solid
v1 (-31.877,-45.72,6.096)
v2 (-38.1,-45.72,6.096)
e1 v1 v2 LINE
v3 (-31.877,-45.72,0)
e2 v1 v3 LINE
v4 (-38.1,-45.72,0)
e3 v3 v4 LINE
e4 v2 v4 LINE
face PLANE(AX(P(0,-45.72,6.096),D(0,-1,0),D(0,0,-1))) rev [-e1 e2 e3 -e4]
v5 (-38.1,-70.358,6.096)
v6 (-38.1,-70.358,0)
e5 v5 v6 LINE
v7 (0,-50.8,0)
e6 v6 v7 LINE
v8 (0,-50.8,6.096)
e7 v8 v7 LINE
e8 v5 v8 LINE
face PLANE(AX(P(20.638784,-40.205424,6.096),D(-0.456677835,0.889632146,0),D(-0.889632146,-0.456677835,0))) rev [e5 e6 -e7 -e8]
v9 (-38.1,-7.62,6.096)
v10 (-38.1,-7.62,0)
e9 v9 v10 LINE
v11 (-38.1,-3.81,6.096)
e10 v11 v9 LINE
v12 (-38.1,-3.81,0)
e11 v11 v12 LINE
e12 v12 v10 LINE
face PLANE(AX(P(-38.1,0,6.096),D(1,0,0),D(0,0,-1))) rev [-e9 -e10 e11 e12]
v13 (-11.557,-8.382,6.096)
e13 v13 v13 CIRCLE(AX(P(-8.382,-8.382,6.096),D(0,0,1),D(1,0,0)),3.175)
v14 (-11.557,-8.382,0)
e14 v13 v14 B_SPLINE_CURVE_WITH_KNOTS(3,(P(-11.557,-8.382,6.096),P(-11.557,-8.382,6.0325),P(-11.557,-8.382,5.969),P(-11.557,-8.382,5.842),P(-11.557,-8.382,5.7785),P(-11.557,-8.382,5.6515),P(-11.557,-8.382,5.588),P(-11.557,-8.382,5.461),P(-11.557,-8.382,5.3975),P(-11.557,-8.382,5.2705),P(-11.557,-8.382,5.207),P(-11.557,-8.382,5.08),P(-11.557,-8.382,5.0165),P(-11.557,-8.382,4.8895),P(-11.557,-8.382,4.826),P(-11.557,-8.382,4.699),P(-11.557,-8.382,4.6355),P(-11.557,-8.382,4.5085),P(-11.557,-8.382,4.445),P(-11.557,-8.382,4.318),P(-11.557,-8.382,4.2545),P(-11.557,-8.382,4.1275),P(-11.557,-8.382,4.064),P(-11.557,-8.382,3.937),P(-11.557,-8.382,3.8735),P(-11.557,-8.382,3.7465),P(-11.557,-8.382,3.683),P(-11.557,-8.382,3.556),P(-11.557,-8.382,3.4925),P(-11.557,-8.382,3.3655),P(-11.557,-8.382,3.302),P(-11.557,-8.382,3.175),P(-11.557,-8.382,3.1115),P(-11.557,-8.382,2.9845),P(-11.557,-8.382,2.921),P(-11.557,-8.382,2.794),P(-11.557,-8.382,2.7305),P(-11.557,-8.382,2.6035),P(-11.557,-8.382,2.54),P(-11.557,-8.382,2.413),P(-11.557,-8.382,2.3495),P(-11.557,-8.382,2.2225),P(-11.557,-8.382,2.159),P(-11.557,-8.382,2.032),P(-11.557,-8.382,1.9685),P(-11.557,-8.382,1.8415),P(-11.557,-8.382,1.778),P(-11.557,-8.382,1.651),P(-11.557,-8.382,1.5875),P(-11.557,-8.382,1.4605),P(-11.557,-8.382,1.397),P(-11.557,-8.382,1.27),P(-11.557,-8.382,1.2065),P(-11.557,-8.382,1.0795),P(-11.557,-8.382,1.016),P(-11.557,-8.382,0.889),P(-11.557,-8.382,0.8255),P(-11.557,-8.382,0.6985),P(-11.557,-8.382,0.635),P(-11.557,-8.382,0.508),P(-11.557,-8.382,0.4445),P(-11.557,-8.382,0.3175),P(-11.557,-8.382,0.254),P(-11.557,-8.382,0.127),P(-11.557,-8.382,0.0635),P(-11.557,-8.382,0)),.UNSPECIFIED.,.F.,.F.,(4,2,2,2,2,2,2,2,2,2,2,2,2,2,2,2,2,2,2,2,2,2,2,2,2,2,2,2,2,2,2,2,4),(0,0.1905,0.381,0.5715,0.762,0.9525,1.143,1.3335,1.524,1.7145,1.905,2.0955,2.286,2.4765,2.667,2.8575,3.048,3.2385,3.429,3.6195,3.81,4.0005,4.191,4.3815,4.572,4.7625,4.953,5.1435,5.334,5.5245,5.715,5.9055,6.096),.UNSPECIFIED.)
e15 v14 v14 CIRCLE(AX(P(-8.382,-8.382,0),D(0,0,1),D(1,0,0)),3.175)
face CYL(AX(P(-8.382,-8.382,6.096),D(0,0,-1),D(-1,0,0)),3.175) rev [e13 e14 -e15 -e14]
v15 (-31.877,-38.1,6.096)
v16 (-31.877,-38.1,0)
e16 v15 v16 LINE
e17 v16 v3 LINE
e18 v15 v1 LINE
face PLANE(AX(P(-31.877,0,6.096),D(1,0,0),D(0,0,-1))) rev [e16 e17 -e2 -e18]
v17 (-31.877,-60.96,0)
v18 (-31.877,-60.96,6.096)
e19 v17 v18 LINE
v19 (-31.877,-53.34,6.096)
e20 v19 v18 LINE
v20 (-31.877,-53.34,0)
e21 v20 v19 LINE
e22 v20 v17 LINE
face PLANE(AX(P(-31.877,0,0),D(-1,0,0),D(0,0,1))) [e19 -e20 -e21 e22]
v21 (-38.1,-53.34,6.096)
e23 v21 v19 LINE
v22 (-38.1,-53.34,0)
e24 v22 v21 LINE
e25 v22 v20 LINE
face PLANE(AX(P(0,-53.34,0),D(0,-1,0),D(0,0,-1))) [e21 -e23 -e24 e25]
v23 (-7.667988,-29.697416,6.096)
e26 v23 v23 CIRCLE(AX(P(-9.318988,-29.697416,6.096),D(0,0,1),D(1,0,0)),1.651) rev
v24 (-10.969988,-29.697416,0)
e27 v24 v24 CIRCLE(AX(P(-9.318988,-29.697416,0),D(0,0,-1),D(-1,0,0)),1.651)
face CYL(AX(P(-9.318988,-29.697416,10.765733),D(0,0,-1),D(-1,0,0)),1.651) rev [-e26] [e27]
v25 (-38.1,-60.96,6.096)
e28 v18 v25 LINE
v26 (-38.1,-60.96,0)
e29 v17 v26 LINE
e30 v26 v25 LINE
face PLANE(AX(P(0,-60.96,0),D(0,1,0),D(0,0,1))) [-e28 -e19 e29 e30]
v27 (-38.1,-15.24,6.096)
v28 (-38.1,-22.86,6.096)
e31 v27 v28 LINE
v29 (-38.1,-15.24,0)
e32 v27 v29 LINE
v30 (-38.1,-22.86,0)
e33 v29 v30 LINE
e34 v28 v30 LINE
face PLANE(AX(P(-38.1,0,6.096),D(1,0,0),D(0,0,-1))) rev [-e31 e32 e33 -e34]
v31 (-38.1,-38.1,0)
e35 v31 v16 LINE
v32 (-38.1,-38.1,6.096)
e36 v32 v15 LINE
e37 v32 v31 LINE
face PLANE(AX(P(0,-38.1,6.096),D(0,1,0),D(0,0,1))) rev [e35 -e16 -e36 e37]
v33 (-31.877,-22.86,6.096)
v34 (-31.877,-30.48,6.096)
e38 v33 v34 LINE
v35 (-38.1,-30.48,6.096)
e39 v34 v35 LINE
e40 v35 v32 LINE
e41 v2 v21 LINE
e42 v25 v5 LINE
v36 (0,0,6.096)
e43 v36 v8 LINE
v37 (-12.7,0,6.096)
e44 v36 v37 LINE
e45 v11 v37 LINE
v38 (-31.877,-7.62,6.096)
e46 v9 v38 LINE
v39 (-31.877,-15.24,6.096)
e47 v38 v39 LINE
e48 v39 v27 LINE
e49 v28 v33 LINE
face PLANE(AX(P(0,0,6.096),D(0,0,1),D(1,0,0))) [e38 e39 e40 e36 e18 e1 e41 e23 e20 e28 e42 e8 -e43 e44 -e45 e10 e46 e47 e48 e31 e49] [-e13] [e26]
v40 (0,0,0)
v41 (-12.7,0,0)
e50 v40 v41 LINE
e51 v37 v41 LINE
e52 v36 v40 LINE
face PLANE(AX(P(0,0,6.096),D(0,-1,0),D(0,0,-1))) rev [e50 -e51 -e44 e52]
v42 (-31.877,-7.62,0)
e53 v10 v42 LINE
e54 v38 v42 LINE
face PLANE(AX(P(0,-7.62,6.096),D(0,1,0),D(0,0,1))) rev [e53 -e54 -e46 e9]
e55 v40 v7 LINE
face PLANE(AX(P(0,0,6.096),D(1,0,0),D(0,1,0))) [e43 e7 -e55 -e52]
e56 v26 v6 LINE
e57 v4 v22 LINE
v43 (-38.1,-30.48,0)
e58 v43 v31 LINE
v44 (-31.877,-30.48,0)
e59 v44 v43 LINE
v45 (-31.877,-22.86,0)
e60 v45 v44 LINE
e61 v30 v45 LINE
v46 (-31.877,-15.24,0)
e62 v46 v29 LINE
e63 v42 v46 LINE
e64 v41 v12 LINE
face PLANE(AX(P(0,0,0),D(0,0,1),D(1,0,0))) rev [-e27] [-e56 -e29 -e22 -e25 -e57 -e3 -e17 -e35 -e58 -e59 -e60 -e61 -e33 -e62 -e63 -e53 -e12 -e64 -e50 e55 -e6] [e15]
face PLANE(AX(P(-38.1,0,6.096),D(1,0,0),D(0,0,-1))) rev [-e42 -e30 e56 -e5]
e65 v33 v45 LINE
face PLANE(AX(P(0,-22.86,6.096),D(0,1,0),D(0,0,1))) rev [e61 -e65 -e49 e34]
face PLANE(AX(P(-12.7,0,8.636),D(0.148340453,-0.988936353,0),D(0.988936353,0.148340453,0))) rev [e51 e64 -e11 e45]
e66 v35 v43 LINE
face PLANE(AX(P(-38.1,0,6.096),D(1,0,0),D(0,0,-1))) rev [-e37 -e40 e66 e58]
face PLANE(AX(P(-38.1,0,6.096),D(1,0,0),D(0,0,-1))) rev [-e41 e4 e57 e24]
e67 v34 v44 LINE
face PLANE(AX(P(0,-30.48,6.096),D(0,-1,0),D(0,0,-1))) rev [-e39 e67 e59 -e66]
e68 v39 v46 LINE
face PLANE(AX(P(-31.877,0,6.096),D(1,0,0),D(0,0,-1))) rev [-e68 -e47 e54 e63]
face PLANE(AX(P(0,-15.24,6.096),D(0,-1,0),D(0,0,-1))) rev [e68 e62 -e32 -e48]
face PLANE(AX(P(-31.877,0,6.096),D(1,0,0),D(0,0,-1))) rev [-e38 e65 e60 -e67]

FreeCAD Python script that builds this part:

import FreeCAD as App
import Part
import Sketcher

V = App.Vector
Q = App.Units.Quantity

doc = App.newDocument("Part")
body = doc.addObject("PartDesign::Body", "Body")

sketch1 = doc.addObject("Sketcher::SketchObject", "Sketch")
body.addObject(sketch1)
sketch1.AttachmentSupport = (doc.XY_Plane, [""])
sketch1.MapMode = "FlatFace"
sketch1.addGeometry([
    Part.LineSegment(V(0, 0, 0), V(-38.1, 0, 0)),
    Part.LineSegment(V(-38.1, 0, 0), V(-38.1, -7.62, 0)),
    Part.LineSegment(V(-38.1, -7.62, 0), V(-31.877, -7.62, 0)),
    Part.LineSegment(V(-31.877, -7.62, 0), V(-31.877, -15.24, 0)),
    Part.LineSegment(V(-31.877, -15.24, 0), V(-38.1, -15.24, 0)),
    Part.LineSegment(V(-38.1, -15.24, 0), V(-38.1, -22.86, 0)),
    Part.LineSegment(V(-38.1, -22.86, 0), V(-31.877, -22.86, 0)),
    Part.LineSegment(V(-31.877, -22.86, 0), V(-31.877, -30.48, 0)),
    Part.LineSegment(V(-31.877, -30.48, 0), V(-38.1, -30.48, 0)),
    Part.LineSegment(V(-38.1, -30.48, 0), V(-38.1, -38.1, 0)),
    Part.LineSegment(V(-38.1, -38.1, 0), V(-31.877, -38.1, 0)),
    Part.LineSegment(V(-31.877, -38.1, 0), V(-31.877, -45.72, 0)),
    Part.LineSegment(V(-31.877, -45.72, 0), V(-38.1, -45.72, 0)),
    Part.LineSegment(V(-38.1, -45.72, 0), V(-38.1, -70.358, 0)),
    Part.LineSegment(V(-38.1, -70.358, 0), V(0, -50.8, 0)),
    Part.LineSegment(V(0, -50.8, 0), V(0, 0, 0)),
    Part.Circle(V(-8.382, -8.382, 0), V(0, 0, 1), 3.175),
], False)
sketch1.addConstraint([
    Sketcher.Constraint("Coincident", 0, 2, 1, 1),
    Sketcher.Constraint("Coincident", 1, 2, 2, 1),
    Sketcher.Constraint("Coincident", 2, 2, 3, 1),
    Sketcher.Constraint("Coincident", 3, 2, 4, 1),
    Sketcher.Constraint("Coincident", 4, 2, 5, 1),
    Sketcher.Constraint("Coincident", 5, 2, 6, 1),
    Sketcher.Constraint("Coincident", 6, 2, 7, 1),
    Sketcher.Constraint("Coincident", 7, 2, 8, 1),
    Sketcher.Constraint("Coincident", 8, 2, 9, 1),
    Sketcher.Constraint("Coincident", 9, 2, 10, 1),
    Sketcher.Constraint("Coincident", 10, 2, 11, 1),
    Sketcher.Constraint("Coincident", 11, 2, 12, 1),
    Sketcher.Constraint("Coincident", 12, 2, 13, 1),
    Sketcher.Constraint("Coincident", 13, 2, 14, 1),
    Sketcher.Constraint("Coincident", 14, 2, 15, 1),
    Sketcher.Constraint("Coincident", 15, 2, 0, 1),
    Sketcher.Constraint("Horizontal", 0),
    Sketcher.Constraint("Vertical", 1),
    Sketcher.Constraint("Horizontal", 2),
    Sketcher.Constraint("Vertical", 3),
    Sketcher.Constraint("Horizontal", 4),
    Sketcher.Constraint("Vertical", 5),
    Sketcher.Constraint("Horizontal", 6),
    Sketcher.Constraint("Vertical", 7),
    Sketcher.Constraint("Horizontal", 8),
    Sketcher.Constraint("Vertical", 9),
    Sketcher.Constraint("Horizontal", 10),
    Sketcher.Constraint("Vertical", 11),
    Sketcher.Constraint("Horizontal", 12),
    Sketcher.Constraint("Vertical", 13),
    Sketcher.Constraint("Vertical", 15),
    Sketcher.Constraint("Coincident", 15, 2, -1, 1),
    Sketcher.Constraint("Vertical", 1, 2, 4, 2),
    Sketcher.Constraint("Vertical", 3, 2, 6, 2),
    Sketcher.Constraint("Vertical", 5, 2, 8, 2),
    Sketcher.Constraint("Vertical", 7, 2, 10, 2),
    Sketcher.Constraint("Vertical", 9, 2, 12, 2),
    Sketcher.Constraint("Equal", 1, 3),
    Sketcher.Constraint("Equal", 3, 5),
    Sketcher.Constraint("Equal", 5, 7),
    Sketcher.Constraint("Equal", 7, 9),
    Sketcher.Constraint("Equal", 9, 11),
    Sketcher.Constraint("Diameter", 16, Q("0.25 in")),
    Sketcher.Constraint("DistanceY", 15, 1, 15, 2, Q("2 in")),
    Sketcher.Constraint("DistanceX", 0, 2, 0, 1, Q("1.5 in")),
    Sketcher.Constraint("DistanceY", 1, 2, 1, 1, Q("0.3 in")),
    Sketcher.Constraint("DistanceY", 13, 2, 13, 1, Q("0.97 in")),
    Sketcher.Constraint("DistanceX", 2, 1, 2, 2, Q("0.245 in")),
    Sketcher.Constraint("DistanceX", 16, 3, -1, 1, Q("0.33 in")),
    Sketcher.Constraint("DistanceY", 16, 3, -1, 1, Q("0.33 in")),
])
pad1 = doc.addObject("PartDesign::Pad", "Pad")
body.addObject(pad1)
pad1.Profile = sketch1
pad1.Length = Q("0.24 in")

sketch2 = doc.addObject("Sketcher::SketchObject", "Sketch001")
body.addObject(sketch2)
sketch2.AttachmentSupport = (doc.XY_Plane, [""])
sketch2.MapMode = "FlatFace"
sketch2.addGeometry([
    Part.LineSegment(V(-38.1, 0, 0), V(-12.7, 0, 0)),
    Part.LineSegment(V(-12.7, 0, 0), V(-38.1, -3.81, 0)),
    Part.LineSegment(V(-38.1, -3.81, 0), V(-38.1, 0, 0)),
], False)
sketch2.addConstraint([
    Sketcher.Constraint("Coincident", 0, 2, 1, 1),
    Sketcher.Constraint("Coincident", 1, 2, 2, 1),
    Sketcher.Constraint("Coincident", 2, 2, 0, 1),
    Sketcher.Constraint("Horizontal", 0),
    Sketcher.Constraint("Vertical", 2),
    Sketcher.Constraint("PointOnObject", 0, 2, -1),
    Sketcher.Constraint("DistanceX", 0, 1, 0, 2, Q("1 in")),
    Sketcher.Constraint("DistanceY", 2, 1, 2, 2, Q("0.15 in")),
    Sketcher.Constraint("DistanceX", 0, 2, -1, 1, Q("0.5 in")),
])
pocket1 = doc.addObject("PartDesign::Pocket", "Pocket")
body.addObject(pocket1)
pocket1.Profile = sketch2
pocket1.Length = Q("0.34 in")
pocket1.Reversed = True

sketch3 = doc.addObject("Sketcher::SketchObject", "Sketch002")
body.addObject(sketch3)
sketch3.AttachmentSupport = (doc.XY_Plane, [""])
sketch3.MapMode = "FlatFace"
sketch3.AttachmentOffset = App.Placement(V(0, 0, 0.24 * 25.4), App.Rotation())
sketch3.addGeometry([
    Part.LineSegment(V(-38.1, -53.34, 0), V(-38.1, -60.96, 0)),
    Part.LineSegment(V(-38.1, -60.96, 0), V(-31.877, -60.96, 0)),
    Part.LineSegment(V(-31.877, -60.96, 0), V(-31.877, -53.34, 0)),
    Part.LineSegment(V(-31.877, -53.34, 0), V(-38.1, -53.34, 0)),
], False)
sketch3.addConstraint([
    Sketcher.Constraint("Coincident", 0, 2, 1, 1),
    Sketcher.Constraint("Coincident", 1, 2, 2, 1),
    Sketcher.Constraint("Coincident", 2, 2, 3, 1),
    Sketcher.Constraint("Coincident", 3, 2, 0, 1),
    Sketcher.Constraint("Vertical", 0),
    Sketcher.Constraint("Horizontal", 1),
    Sketcher.Constraint("Vertical", 2),
    Sketcher.Constraint("Horizontal", 3),
    Sketcher.Constraint("DistanceY", 0, 2, 0, 1, Q("0.3 in")),
    Sketcher.Constraint("DistanceX", 0, 2, -1, 1, Q("1.5 in")),
    Sketcher.Constraint("DistanceY", 0, 2, -1, 1, Q("2.4 in")),
    Sketcher.Constraint("DistanceX", 1, 1, 1, 2, Q("0.245 in")),
])
pocket2 = doc.addObject("PartDesign::Pocket", "Pocket001")
body.addObject(pocket2)
pocket2.Profile = sketch3
pocket2.Type = "ThroughAll"

sketch4 = doc.addObject("Sketcher::SketchObject", "Sketch003")
body.addObject(sketch4)
sketch4.AttachmentSupport = (doc.XY_Plane, [""])
sketch4.MapMode = "FlatFace"
sketch4.addGeometry(Part.Circle(V(-9.318988, -29.697416, 0), V(0, 0, 1), 1.651), False)
sketch4.addConstraint([
    Sketcher.Constraint("Diameter", 0, Q("0.13 in")),
    Sketcher.Constraint("DistanceX", 0, 3, -1, 1, Q("9.318988 mm")),
    Sketcher.Constraint("DistanceY", 0, 3, -1, 1, Q("29.697416 mm")),
])
pocket3 = doc.addObject("PartDesign::Pocket", "Pocket002")
body.addObject(pocket3)
pocket3.Profile = sketch4
pocket3.Length = Q("0.24 in")
pocket3.Reversed = True

doc.recompute()
